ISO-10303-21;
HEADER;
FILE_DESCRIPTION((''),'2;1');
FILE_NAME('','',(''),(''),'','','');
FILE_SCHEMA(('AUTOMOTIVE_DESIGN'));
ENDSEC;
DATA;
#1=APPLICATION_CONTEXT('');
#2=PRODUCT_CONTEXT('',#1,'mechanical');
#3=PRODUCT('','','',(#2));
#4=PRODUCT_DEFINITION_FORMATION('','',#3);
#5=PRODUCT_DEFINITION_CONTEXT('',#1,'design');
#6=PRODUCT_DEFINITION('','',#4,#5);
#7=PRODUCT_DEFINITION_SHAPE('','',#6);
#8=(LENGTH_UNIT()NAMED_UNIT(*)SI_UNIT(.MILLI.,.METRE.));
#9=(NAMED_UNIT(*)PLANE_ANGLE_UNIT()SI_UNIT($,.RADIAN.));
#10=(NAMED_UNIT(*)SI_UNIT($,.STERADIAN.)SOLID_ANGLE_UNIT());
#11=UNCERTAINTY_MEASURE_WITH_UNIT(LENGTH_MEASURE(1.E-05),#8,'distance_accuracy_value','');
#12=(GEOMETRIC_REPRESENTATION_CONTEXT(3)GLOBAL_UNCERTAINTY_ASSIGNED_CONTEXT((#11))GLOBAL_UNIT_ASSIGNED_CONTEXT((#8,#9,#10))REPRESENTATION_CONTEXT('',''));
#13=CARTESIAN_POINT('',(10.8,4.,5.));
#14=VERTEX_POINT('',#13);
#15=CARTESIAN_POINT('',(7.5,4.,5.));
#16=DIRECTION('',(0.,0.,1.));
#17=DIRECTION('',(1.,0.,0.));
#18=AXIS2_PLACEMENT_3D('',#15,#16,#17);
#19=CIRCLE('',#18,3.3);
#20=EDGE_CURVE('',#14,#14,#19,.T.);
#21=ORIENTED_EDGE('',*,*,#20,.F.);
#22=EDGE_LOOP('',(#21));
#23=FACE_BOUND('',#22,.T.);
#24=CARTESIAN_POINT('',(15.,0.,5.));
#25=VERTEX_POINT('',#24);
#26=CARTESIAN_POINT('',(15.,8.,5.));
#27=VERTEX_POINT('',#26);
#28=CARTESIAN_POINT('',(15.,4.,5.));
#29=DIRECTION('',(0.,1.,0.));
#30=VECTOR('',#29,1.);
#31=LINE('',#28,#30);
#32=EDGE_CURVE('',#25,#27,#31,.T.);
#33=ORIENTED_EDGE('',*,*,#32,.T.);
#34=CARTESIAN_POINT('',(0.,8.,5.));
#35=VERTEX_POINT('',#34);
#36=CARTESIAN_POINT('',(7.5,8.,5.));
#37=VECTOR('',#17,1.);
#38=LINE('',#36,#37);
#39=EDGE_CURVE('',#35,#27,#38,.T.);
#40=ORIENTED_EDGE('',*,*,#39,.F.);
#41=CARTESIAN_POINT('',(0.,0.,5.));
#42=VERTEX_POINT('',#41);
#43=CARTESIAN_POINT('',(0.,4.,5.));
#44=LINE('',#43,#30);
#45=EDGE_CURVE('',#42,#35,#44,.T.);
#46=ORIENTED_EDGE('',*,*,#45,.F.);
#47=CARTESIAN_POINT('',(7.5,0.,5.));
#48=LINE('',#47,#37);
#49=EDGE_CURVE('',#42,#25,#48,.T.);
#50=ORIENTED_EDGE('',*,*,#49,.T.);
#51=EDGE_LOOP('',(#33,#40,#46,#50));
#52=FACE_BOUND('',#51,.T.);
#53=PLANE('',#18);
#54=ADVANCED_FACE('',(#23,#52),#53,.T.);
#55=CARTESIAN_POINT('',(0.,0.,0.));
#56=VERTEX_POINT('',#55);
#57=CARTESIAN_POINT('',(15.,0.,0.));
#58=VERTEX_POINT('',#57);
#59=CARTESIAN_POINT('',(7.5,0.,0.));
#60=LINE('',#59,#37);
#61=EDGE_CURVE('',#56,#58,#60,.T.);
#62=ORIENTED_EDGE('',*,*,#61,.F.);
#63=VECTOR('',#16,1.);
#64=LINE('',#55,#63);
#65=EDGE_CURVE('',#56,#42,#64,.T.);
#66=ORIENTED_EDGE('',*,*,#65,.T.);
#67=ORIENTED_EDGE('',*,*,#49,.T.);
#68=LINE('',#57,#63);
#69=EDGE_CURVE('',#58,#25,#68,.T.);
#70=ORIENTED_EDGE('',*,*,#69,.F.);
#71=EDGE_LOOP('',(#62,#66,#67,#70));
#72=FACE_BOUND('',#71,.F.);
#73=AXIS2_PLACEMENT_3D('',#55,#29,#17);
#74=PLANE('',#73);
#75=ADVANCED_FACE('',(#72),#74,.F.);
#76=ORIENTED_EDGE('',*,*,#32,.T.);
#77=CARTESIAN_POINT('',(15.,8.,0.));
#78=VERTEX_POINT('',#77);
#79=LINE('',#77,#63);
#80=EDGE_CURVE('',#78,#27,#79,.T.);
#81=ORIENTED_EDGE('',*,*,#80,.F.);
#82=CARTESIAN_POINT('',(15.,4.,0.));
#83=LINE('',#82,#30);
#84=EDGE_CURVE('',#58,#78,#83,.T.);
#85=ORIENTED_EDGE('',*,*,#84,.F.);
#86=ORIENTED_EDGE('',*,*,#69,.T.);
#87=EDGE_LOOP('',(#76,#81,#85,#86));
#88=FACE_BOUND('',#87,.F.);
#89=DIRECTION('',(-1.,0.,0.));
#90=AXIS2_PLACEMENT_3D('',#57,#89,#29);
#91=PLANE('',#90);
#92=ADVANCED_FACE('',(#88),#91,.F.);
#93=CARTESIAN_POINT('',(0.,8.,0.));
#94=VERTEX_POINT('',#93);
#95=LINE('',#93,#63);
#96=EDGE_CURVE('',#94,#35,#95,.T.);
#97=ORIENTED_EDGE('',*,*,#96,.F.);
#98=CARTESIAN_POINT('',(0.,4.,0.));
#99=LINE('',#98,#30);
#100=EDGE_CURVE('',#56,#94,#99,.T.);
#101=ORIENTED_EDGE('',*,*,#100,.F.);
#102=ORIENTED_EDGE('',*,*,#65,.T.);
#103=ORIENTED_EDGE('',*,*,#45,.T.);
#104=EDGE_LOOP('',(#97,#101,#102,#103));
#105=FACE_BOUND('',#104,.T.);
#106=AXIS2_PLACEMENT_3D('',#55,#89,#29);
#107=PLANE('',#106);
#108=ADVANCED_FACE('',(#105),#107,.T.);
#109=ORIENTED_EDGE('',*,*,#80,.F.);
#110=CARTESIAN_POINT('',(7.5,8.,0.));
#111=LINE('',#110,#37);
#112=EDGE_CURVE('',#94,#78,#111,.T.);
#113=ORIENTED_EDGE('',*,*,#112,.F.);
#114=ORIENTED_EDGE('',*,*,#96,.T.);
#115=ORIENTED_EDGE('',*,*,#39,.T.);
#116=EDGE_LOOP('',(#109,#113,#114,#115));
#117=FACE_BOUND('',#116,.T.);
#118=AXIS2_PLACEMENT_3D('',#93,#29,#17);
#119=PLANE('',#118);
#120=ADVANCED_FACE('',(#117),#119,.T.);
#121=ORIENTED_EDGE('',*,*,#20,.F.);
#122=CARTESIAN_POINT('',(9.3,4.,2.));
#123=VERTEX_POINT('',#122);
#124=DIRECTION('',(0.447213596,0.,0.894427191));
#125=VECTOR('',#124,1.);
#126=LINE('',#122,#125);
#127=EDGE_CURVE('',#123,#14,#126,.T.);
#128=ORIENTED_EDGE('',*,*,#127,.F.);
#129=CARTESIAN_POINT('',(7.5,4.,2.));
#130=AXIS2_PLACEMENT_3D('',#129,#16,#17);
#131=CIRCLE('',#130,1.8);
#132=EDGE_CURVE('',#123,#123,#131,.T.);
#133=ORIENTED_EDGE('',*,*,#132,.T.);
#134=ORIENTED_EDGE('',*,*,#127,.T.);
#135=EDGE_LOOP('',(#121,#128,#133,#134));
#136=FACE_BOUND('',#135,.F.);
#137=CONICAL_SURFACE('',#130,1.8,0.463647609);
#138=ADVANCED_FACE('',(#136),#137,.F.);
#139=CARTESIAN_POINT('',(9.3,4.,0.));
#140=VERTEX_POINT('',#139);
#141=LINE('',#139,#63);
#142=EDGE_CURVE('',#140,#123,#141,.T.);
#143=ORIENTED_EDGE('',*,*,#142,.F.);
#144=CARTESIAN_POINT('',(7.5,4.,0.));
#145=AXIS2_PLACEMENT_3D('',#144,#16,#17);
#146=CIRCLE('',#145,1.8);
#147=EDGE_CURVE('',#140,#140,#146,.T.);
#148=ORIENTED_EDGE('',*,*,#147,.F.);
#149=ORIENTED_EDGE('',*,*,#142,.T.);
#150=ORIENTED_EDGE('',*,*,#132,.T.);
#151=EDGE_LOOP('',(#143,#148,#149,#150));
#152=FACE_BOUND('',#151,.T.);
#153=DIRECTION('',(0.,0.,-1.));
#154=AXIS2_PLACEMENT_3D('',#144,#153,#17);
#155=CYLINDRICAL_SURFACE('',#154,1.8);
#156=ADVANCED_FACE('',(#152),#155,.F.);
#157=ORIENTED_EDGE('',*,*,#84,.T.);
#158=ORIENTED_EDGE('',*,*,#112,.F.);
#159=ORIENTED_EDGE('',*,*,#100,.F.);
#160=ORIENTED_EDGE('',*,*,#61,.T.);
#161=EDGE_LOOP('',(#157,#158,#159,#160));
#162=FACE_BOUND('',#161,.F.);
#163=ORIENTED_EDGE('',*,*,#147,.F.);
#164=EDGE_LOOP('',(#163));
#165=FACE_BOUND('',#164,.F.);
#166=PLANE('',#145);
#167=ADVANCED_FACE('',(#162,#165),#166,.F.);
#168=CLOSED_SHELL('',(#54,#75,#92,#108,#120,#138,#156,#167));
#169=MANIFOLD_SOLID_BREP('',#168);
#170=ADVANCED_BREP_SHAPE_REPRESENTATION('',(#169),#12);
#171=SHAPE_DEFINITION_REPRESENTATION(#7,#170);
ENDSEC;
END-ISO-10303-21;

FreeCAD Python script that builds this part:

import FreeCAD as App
import Part
import Sketcher


def add_polygon(sketch, points):
    """Adds a closed chain of lines whose ends are joined by coincident constraints."""
    first, n = sketch.GeometryCount, len(points)
    for a, b in zip(points, points[1:] + points[:1]):
        sketch.addGeometry(Part.LineSegment(App.Vector(*a, 0), App.Vector(*b, 0)), False)
    for i in range(n):
        sketch.addConstraint(Sketcher.Constraint("Coincident", first + i, 2, first + (i + 1) % n, 1))

doc = App.newDocument("Part")
body = doc.addObject("PartDesign::Body", "Body")

# Sketch on XY plane
sketch1 = body.newObject("Sketcher::SketchObject", "Sketch")
sketch1.AttachmentSupport = (doc.getObject("XY_Plane"), [""])
sketch1.MapMode = "FlatFace"
sketch1.addGeometry(Part.Circle(App.Vector(7.5, 4, 0), App.Vector(0, 0, 1), 1.8), False)
sketch1.addConstraint([
    Sketcher.Constraint("Diameter", 0, 3.6),
    Sketcher.Constraint("DistanceY", -1, 1, 0, 3, 4.0),
    Sketcher.Constraint("DistanceX", -1, 1, 0, 3, 7.5),
])
pad1 = body.newObject("PartDesign::Pad", "Pad")
pad1.Profile = sketch1
pad1.Length = 10
body2 = doc.addObject("PartDesign::Body", "Body001")

# Sketch on XZ plane
sketch2 = body2.newObject("Sketcher::SketchObject", "Sketch001")
sketch2.AttachmentSupport = (doc.getObject("XZ_Plane001"), [""])
sketch2.MapMode = "FlatFace"
sketch2.AttachmentOffset = App.Placement(App.Vector(0, 0, -4), App.Rotation())
add_polygon(sketch2, [(7.5, 2), (9.3, 2), (10.8, 5), (7.5, 5)])  # lines 0-3
sketch2.addGeometry(Part.LineSegment(App.Vector(7.5, 2, 0), App.Vector(7.5, 5, 0)), True)  # axis
sketch2.addConstraint([
    Sketcher.Constraint("Horizontal", 0),
    Sketcher.Constraint("Horizontal", 2),
    Sketcher.Constraint("Vertical", 3),
    Sketcher.Constraint("Vertical", 4),
    Sketcher.Constraint("Coincident", 4, 1, 3, 2),
    Sketcher.Constraint("Horizontal", 1, 2, 4, 2),
    Sketcher.Constraint("DistanceY", 3, 2, 3, 1, 3.0),
    Sketcher.Constraint("DistanceX", 0, 1, 0, 2, 1.8),
    Sketcher.Constraint("DistanceX", 2, 2, 2, 1, 3.3),
    Sketcher.Constraint("DistanceY", -1, 1, 0, 2, 2.0),
    Sketcher.Constraint("DistanceX", -1, 1, 0, 2, 9.3),
])
revolution = body2.newObject("PartDesign::Revolution", "Revolution")
revolution.Profile = sketch2
revolution.ReferenceAxis = (sketch2, ["Axis0"])
revolution.Angle = 360
doc.recompute()

boolean = body2.newObject("PartDesign::Boolean", "Boolean")
boolean.Type = "Fuse"
boolean.addObjects([body])
body3 = doc.addObject("PartDesign::Body", "Body002")

# Sketch on XY plane
sketch3 = body3.newObject("Sketcher::SketchObject", "Sketch002")
sketch3.AttachmentSupport = (doc.getObject("XY_Plane002"), [""])
sketch3.MapMode = "FlatFace"
add_polygon(sketch3, [(0, 8), (0, 0), (15, 0), (15, 8)])  # lines 0-3
sketch3.addConstraint([
    Sketcher.Constraint("Vertical", 0),
    Sketcher.Constraint("Horizontal", 1),
    Sketcher.Constraint("Vertical", 2),
    Sketcher.Constraint("Horizontal", 3),
    Sketcher.Constraint("Coincident", 0, 2, -1, 1),
    Sketcher.Constraint("DistanceX", 1, 1, 1, 2, 15.0),
    Sketcher.Constraint("DistanceY", 0, 2, 0, 1, 8.0),
])
pad2 = body3.newObject("PartDesign::Pad", "Pad001")
pad2.Profile = sketch3
pad2.Length = 5
doc.recompute()

boolean2 = body3.newObject("PartDesign::Boolean", "Boolean001")
boolean2.Type = "Cut"
boolean2.addObjects([body2])

doc.recompute()
